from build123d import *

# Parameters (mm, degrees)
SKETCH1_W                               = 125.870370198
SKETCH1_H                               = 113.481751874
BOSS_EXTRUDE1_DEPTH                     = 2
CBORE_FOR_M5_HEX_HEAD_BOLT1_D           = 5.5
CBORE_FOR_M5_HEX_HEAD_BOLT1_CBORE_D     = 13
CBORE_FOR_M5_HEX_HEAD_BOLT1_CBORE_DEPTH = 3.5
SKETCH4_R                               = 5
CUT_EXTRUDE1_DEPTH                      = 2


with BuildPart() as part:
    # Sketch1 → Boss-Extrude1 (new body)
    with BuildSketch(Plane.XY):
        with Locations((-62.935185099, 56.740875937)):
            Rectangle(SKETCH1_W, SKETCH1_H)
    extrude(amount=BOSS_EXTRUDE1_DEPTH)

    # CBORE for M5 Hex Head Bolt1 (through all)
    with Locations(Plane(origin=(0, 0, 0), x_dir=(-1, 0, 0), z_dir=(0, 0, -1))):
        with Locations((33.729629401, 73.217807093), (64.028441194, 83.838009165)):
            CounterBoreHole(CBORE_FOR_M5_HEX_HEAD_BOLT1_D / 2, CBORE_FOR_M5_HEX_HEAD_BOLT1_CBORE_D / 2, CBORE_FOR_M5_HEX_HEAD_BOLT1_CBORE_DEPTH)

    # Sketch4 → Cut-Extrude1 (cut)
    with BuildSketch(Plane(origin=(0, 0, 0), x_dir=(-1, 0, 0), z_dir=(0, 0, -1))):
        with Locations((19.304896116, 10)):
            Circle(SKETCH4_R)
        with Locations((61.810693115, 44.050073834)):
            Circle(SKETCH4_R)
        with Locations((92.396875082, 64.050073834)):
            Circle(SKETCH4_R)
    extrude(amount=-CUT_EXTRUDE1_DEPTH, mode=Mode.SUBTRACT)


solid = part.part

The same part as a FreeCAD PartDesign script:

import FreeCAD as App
import Part
import Sketcher
Q = App.Units.Quantity

doc = App.newDocument("Part")
params = doc.addObject("Spreadsheet::Sheet", "Params")
for row, (alias, value) in enumerate([
    ("pad1_length", "2 mm"),
    ("sketch2_diameter", "5.5 mm"),
    ("hole_diameter", "5.5 mm"),
    ("hole_cbore_diameter", "13 mm"),
    ("hole_cbore_depth", "3.5 mm"),
    ("sketch3_diameter", "10 mm"),
    ("pocket1_length", "2 mm"),
], start=1):
    params.set(f"A{row}", alias)
    params.set(f"B{row}", "=" + value)
    params.setAlias(f"B{row}", alias)

body = doc.addObject("PartDesign::Body", "Body")

sketch1 = doc.addObject("Sketcher::SketchObject", "Sketch")
body.addObject(sketch1)
sketch1.AttachmentSupport = (doc.XY_Plane, [""])
sketch1.MapMode = "FlatFace"
sketch1.addGeometry(Part.LineSegment(App.Vector(-126, 113, 0), App.Vector(-126, 0, 0)), False)
sketch1.addGeometry(Part.LineSegment(App.Vector(-126, 0, 0), App.Vector(0, 0, 0)), False)
sketch1.addGeometry(Part.LineSegment(App.Vector(0, 0, 0), App.Vector(0, 113, 0)), False)
sketch1.addGeometry(Part.LineSegment(App.Vector(0, 113, 0), App.Vector(-126, 113, 0)), False)
sketch1.addConstraint(Sketcher.Constraint("Coincident", 0, 2, 1, 1))
sketch1.addConstraint(Sketcher.Constraint("Coincident", 1, 2, 2, 1))
sketch1.addConstraint(Sketcher.Constraint("Coincident", 2, 2, 3, 1))
sketch1.addConstraint(Sketcher.Constraint("Coincident", 3, 2, 0, 1))
sketch1.addConstraint(Sketcher.Constraint("Vertical", 0))
sketch1.addConstraint(Sketcher.Constraint("Horizontal", 1))
sketch1.addConstraint(Sketcher.Constraint("Vertical", 2))
sketch1.addConstraint(Sketcher.Constraint("Horizontal", 3))
sketch1.addConstraint(Sketcher.Constraint("Coincident", 1, 2, -1, 1))
sketch1.addConstraint(Sketcher.Constraint("DistanceX", 1, 1, 1, 2, Q("125.87037 mm")))
sketch1.addConstraint(Sketcher.Constraint("DistanceY", 0, 2, 0, 1, Q("113.481752 mm")))
pad1 = doc.addObject("PartDesign::Pad", "Pad")
body.addObject(pad1)
pad1.Profile = sketch1
pad1.setExpression("Length", "Params.pad1_length")

sketch2 = doc.addObject("Sketcher::SketchObject", "Sketch001")
body.addObject(sketch2)
sketch2.AttachmentSupport = (doc.XY_Plane, [""])
sketch2.MapMode = "FlatFace"
sketch2.addGeometry(Part.Circle(App.Vector(-33.7, 73.2, 0), App.Vector(0, 0, 1), 2.8), False)
sketch2.addGeometry(Part.Circle(App.Vector(-64, 83.8, 0), App.Vector(0, 0, 1), 2.8), False)
sketch2.addConstraint(Sketcher.Constraint("Equal", 0, 1))
sketch2.addConstraint(Sketcher.Constraint("Diameter", 0, Q("5.5 mm")))
sketch2.addConstraint(Sketcher.Constraint("DistanceX", 0, 3, -1, 1, Q("33.729629 mm")))
sketch2.addConstraint(Sketcher.Constraint("DistanceX", 1, 3, -1, 1, Q("64.028441 mm")))
sketch2.addConstraint(Sketcher.Constraint("DistanceY", -1, 1, 1, 3, Q("83.838009 mm")))
sketch2.addConstraint(Sketcher.Constraint("DistanceY", -1, 1, 0, 3, Q("73.217807 mm")))
sketch2.setExpression("Constraints[1]", "Params.sketch2_diameter")
doc.recompute()
hole = doc.addObject("PartDesign::Hole", "Hole")
body.addObject(hole)
hole.Profile = sketch2
hole.ThreadType = "None"
hole.setExpression("Diameter", "Params.hole_diameter")
hole.DepthType = "ThroughAll"
hole.HoleCutType = "Counterbore"
hole.setExpression("HoleCutDiameter", "Params.hole_cbore_diameter")
hole.setExpression("HoleCutDepth", "Params.hole_cbore_depth")
hole.Reversed = True

sketch3 = doc.addObject("Sketcher::SketchObject", "Sketch002")
body.addObject(sketch3)
sketch3.AttachmentSupport = (doc.XY_Plane, [""])
sketch3.MapMode = "FlatFace"
sketch3.addGeometry(Part.Circle(App.Vector(-19, 10, 0), App.Vector(0, 0, 1), 5), False)
sketch3.addGeometry(Part.Circle(App.Vector(-62, 44, 0), App.Vector(0, 0, 1), 5), False)
sketch3.addGeometry(Part.Circle(App.Vector(-92, 64, 0), App.Vector(0, 0, 1), 5), False)
sketch3.addConstraint(Sketcher.Constraint("Equal", 0, 1))
sketch3.addConstraint(Sketcher.Constraint("Equal", 1, 2))
sketch3.addConstraint(Sketcher.Constraint("Diameter", 0, Q("10 mm")))
sketch3.addConstraint(Sketcher.Constraint("DistanceY", -1, 1, 0, 3, Q("10 mm")))
sketch3.addConstraint(Sketcher.Constraint("DistanceY", 1, 3, 2, 3, Q("20 mm")))
sketch3.addConstraint(Sketcher.Constraint("DistanceX", 2, 3, 1, 3, Q("30.586182 mm")))
sketch3.addConstraint(Sketcher.Constraint("DistanceX", 2, 3, 0, 3, Q("73.091979 mm")))
sketch3.addConstraint(Sketcher.Constraint("DistanceX", 0, 3, -1, 1, Q("19.304896 mm")))
sketch3.addConstraint(Sketcher.Constraint("DistanceY", -1, 1, 1, 3, Q("44.050074 mm")))
sketch3.setExpression("Constraints[2]", "Params.sketch3_diameter")
pocket1 = doc.addObject("PartDesign::Pocket", "Pocket")
body.addObject(pocket1)
pocket1.Profile = sketch3
pocket1.setExpression("Length", "Params.pocket1_length")
pocket1.Reversed = True

doc.recompute()
